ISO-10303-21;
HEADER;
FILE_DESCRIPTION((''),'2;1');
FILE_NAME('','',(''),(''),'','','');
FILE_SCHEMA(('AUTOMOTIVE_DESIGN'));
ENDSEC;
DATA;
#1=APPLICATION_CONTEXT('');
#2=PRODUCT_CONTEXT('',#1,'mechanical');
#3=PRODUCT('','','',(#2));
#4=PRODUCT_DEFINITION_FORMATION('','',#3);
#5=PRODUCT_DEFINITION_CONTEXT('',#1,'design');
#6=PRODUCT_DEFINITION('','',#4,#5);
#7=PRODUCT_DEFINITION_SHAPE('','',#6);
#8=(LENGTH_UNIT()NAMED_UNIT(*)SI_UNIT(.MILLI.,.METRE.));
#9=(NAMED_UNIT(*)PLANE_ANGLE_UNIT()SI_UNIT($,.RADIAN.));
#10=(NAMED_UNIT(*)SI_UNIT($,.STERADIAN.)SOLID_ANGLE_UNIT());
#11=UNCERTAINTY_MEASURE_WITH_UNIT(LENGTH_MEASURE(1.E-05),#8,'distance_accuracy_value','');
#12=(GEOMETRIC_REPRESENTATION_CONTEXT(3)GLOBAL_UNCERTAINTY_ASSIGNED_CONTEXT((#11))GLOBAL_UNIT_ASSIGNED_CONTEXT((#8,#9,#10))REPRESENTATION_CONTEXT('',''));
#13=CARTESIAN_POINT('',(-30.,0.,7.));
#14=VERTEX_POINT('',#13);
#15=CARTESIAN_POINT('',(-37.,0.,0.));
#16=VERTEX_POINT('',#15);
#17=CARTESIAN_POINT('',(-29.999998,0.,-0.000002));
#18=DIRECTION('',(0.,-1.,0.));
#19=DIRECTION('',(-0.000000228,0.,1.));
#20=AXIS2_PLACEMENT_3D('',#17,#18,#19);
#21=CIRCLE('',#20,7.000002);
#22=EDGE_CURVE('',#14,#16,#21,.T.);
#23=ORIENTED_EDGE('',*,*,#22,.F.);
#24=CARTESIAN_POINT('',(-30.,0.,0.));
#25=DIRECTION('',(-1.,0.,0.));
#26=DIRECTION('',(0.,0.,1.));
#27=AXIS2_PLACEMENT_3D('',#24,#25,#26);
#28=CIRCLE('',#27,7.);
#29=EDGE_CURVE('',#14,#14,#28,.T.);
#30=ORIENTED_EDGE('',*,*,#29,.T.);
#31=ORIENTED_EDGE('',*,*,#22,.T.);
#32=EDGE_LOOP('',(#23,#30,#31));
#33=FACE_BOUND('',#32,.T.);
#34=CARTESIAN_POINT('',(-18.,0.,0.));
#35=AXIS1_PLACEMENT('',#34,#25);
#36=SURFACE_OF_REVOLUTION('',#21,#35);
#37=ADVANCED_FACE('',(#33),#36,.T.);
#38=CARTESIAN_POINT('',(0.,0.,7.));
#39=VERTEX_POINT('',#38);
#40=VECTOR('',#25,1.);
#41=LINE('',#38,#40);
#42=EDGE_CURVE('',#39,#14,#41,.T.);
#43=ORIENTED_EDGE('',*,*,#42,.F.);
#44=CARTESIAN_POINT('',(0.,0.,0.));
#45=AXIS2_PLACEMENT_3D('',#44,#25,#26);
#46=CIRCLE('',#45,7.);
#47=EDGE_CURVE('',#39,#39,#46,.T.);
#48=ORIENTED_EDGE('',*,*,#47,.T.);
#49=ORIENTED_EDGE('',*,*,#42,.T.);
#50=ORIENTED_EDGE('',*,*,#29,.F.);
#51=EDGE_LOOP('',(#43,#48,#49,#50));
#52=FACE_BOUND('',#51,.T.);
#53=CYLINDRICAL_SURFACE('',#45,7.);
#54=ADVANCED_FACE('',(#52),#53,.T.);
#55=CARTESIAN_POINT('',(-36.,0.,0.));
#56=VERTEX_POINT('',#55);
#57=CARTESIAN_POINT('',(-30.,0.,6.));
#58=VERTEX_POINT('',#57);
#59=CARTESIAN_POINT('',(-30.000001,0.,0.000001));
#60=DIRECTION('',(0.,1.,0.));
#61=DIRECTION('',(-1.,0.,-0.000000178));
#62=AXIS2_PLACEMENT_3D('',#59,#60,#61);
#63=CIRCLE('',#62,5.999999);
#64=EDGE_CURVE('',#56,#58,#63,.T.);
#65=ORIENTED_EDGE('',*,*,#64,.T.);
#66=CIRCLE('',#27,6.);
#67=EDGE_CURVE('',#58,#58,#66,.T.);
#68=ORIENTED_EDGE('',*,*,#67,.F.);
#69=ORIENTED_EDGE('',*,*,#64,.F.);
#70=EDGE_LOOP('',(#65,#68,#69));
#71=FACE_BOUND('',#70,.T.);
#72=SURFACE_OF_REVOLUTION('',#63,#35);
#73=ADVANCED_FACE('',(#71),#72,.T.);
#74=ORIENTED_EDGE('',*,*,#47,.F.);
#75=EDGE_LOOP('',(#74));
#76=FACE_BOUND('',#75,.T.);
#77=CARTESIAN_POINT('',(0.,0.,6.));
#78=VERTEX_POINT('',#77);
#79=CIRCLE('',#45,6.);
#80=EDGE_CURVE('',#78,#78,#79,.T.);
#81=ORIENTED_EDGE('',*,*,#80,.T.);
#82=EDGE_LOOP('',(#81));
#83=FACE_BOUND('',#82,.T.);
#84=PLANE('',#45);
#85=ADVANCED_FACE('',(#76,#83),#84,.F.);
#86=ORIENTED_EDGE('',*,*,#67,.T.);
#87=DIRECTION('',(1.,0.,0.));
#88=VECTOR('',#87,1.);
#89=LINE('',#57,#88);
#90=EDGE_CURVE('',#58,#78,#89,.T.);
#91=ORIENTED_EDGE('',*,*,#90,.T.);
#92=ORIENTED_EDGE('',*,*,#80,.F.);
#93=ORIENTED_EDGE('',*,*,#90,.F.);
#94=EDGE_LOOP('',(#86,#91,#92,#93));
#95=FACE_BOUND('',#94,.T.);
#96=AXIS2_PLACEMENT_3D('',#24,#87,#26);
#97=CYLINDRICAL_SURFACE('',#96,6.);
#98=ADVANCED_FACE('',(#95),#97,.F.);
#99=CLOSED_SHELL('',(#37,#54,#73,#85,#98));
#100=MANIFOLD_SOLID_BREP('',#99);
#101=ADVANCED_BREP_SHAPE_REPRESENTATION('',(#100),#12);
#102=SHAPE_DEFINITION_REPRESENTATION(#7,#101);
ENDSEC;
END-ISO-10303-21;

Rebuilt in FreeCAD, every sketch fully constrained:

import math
import FreeCAD as App
import Part
import Sketcher
from FreeCAD import Vector

doc = App.newDocument("Part")
body = doc.addObject("PartDesign::Body", "Body")

# Sketch on XZ plane
sketch1 = body.newObject("Sketcher::SketchObject", "Sketch")
sketch1.AttachmentSupport = (doc.getObject("XZ_Plane"), [""])
sketch1.MapMode = "FlatFace"
sketch1.addGeometry(Part.LineSegment(Vector(0, 6, 0), Vector(0, 7, 0)), False)
sketch1.addGeometry(Part.LineSegment(Vector(0, 7, 0), Vector(-30, 7, 0)), False)
sketch1.addGeometry(Part.ArcOfCircle(Part.Circle(Vector(-29.999998, -0.000002, 0), Vector(0, 0, 1), 7.000002), math.radians(90.000013), math.radians(179.999987)), False)
sketch1.addGeometry(Part.LineSegment(Vector(-37, 0, 0), Vector(-36, 0, 0)), False)
sketch1.addGeometry(Part.ArcOfCircle(Part.Circle(Vector(-30.000001, 0.000001, 0), Vector(0, 0, 1), 5.999999), math.radians(89.99999), math.radians(180.00001)), False)
sketch1.addGeometry(Part.LineSegment(Vector(-30, 6, 0), Vector(0, 6, 0)), False)
sketch1.addConstraint(Sketcher.Constraint("Coincident", 0, 2, 1, 1))
sketch1.addConstraint(Sketcher.Constraint("Tangent", 1, 2, 2, 1))
sketch1.addConstraint(Sketcher.Constraint("Coincident", 2, 2, 3, 1))
sketch1.addConstraint(Sketcher.Constraint("Coincident", 3, 2, 4, 2))
sketch1.addConstraint(Sketcher.Constraint("Tangent", 4, 1, 5, 1))
sketch1.addConstraint(Sketcher.Constraint("Coincident", 5, 2, 0, 1))
sketch1.addConstraint(Sketcher.Constraint("Vertical", 0))
sketch1.addConstraint(Sketcher.Constraint("Horizontal", 1))
sketch1.addConstraint(Sketcher.Constraint("Horizontal", 3))
sketch1.addConstraint(Sketcher.Constraint("Horizontal", 5))
sketch1.addConstraint(Sketcher.Constraint("Coincident", 4, 3, 2, 3))
sketch1.addConstraint(Sketcher.Constraint("PointOnObject", 2, 3, -1))
sketch1.addConstraint(Sketcher.Constraint("PointOnObject", 0, 2, -2))
sketch1.addConstraint(Sketcher.Constraint("PointOnObject", 2, 2, -1))
sketch1.addConstraint(Sketcher.Constraint("Radius", 2, 7.000002))
sketch1.addConstraint(Sketcher.Constraint("Radius", 4, 5.999999))
sketch1.addConstraint(Sketcher.Constraint("DistanceX", 1, 2, 1, 1, 30.0))
revolution = body.newObject("PartDesign::Revolution", "Revolution")
revolution.Profile = sketch1
revolution.ReferenceAxis = (sketch1, ["H_Axis"])
revolution.Angle = 360

doc.recompute()
